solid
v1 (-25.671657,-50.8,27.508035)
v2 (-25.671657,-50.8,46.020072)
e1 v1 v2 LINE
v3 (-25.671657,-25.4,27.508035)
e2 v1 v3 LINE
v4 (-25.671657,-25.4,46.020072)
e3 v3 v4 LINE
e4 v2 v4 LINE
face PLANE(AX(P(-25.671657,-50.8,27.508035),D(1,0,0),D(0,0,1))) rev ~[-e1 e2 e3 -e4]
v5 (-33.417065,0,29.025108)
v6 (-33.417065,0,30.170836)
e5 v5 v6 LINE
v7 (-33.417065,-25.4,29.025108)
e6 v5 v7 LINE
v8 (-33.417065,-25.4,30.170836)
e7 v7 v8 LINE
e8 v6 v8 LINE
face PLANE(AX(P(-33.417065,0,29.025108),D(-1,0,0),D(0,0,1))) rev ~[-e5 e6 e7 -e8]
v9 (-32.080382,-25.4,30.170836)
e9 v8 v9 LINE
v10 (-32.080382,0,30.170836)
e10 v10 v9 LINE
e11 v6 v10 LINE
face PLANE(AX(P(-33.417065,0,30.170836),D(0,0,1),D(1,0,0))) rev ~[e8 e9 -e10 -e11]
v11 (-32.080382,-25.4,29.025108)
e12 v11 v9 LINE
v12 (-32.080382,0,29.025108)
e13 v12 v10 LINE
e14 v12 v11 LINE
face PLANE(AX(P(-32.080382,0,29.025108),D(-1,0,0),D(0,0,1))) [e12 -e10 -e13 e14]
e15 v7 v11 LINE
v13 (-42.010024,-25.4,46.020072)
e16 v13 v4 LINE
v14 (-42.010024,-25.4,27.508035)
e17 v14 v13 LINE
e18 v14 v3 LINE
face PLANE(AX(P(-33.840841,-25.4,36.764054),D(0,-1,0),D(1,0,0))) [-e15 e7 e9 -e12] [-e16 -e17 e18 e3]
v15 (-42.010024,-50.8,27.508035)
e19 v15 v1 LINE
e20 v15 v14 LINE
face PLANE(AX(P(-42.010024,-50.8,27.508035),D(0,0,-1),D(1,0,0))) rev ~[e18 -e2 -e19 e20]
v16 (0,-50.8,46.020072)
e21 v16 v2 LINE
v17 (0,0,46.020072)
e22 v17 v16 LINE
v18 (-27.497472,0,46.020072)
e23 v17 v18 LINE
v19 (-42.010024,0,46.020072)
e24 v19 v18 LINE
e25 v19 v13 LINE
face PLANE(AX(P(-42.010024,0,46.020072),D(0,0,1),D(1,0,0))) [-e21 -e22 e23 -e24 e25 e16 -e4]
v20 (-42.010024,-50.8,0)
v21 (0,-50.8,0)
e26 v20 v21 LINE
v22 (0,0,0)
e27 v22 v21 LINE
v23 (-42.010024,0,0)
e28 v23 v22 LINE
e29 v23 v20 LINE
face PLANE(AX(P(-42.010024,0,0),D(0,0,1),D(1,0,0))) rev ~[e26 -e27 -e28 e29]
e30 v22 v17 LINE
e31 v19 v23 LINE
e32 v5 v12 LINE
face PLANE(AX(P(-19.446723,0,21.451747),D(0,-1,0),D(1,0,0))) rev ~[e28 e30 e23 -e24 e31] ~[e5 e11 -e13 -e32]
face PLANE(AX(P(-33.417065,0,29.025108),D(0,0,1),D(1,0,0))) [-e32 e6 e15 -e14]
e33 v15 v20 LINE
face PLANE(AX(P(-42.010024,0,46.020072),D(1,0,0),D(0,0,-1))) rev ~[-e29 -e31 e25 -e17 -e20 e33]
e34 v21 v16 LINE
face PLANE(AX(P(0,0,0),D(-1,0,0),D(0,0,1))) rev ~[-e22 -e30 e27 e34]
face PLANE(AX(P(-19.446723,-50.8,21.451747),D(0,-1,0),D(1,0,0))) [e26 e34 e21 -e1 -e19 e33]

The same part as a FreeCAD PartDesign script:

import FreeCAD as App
import Part
import Sketcher
from FreeCAD import Vector


def add_polygon(sketch, points):
    """Adds a closed chain of lines whose ends are joined by coincident constraints."""
    first, n = sketch.GeometryCount, len(points)
    for a, b in zip(points, points[1:] + points[:1]):
        sketch.addGeometry(Part.LineSegment(App.Vector(*a, 0), App.Vector(*b, 0)), False)
    for i in range(n):
        sketch.addConstraint(Sketcher.Constraint("Coincident", first + i, 2, first + (i + 1) % n, 1))

doc = App.newDocument("Part")
params = doc.addObject("Spreadsheet::Sheet", "Params")
for row, (alias, value) in enumerate([
    ("pad1_length", "2 in"),
    ("pad2_length", "2 in"),
    ("pocket1_length", "1 in"),
], start=1):
    params.set(f"A{row}", alias)
    params.set(f"B{row}", "=" + value)
    params.setAlias(f"B{row}", alias)

body = doc.addObject("PartDesign::Body", "Body")

# Sketch on XZ plane
sketch1 = body.newObject("Sketcher::SketchObject", "Sketch")
sketch1.AttachmentSupport = (doc.getObject("XZ_Plane"), [""])
sketch1.MapMode = "FlatFace"
add_polygon(sketch1, [(-42, 0), (0, 0), (0, 46), (-27.5, 46), (-42, 46)])  # lines 0-4
add_polygon(sketch1, [(-32.1, 29), (-33.4, 29), (-33.4, 30.2), (-32.1, 30.2)])  # lines 5-8
sketch1.addConstraint(Sketcher.Constraint("Horizontal", 0))
sketch1.addConstraint(Sketcher.Constraint("Vertical", 1))
sketch1.addConstraint(Sketcher.Constraint("Horizontal", 2))
sketch1.addConstraint(Sketcher.Constraint("Horizontal", 3))
sketch1.addConstraint(Sketcher.Constraint("Vertical", 4))
sketch1.addConstraint(Sketcher.Constraint("Horizontal", 5))
sketch1.addConstraint(Sketcher.Constraint("Vertical", 6))
sketch1.addConstraint(Sketcher.Constraint("Horizontal", 7))
sketch1.addConstraint(Sketcher.Constraint("Vertical", 8))
sketch1.addConstraint(Sketcher.Constraint("Coincident", 0, 2, -1, 1))
sketch1.addConstraint(Sketcher.Constraint("DistanceX", 3, 2, 3, 1, 14.512552))
sketch1.addConstraint(Sketcher.Constraint("DistanceY", 1, 1, 1, 2, 46.020072))
sketch1.addConstraint(Sketcher.Constraint("DistanceX", 0, 1, 0, 2, 42.010024))
sketch1.addConstraint(Sketcher.Constraint("DistanceX", 5, 2, 5, 1, 1.336683))
sketch1.addConstraint(Sketcher.Constraint("DistanceY", 6, 1, 6, 2, 1.145728))
sketch1.addConstraint(Sketcher.Constraint("DistanceX", 3, 2, 5, 2, 8.592959))
sketch1.addConstraint(Sketcher.Constraint("DistanceY", -1, 1, 5, 2, 29.025108))
pad1 = body.newObject("PartDesign::Pad", "Pad")
pad1.Profile = sketch1
pad1.setExpression("Length", "Params.pad1_length")

# Sketch on XZ plane
sketch2 = body.newObject("Sketcher::SketchObject", "Sketch001")
sketch2.AttachmentSupport = (doc.getObject("XZ_Plane"), [""])
sketch2.MapMode = "FlatFace"
add_polygon(sketch2, [(-42, 0), (0, 0), (0, 46), (-27.5, 46), (-42, 46)])  # lines 0-4
add_polygon(sketch2, [(-32.1, 29), (-33.4, 29), (-33.4, 30.2), (-32.1, 30.2)])  # lines 5-8
sketch2.addConstraint(Sketcher.Constraint("Horizontal", 0))
sketch2.addConstraint(Sketcher.Constraint("Vertical", 1))
sketch2.addConstraint(Sketcher.Constraint("Horizontal", 2))
sketch2.addConstraint(Sketcher.Constraint("Horizontal", 3))
sketch2.addConstraint(Sketcher.Constraint("Vertical", 4))
sketch2.addConstraint(Sketcher.Constraint("Horizontal", 5))
sketch2.addConstraint(Sketcher.Constraint("Vertical", 6))
sketch2.addConstraint(Sketcher.Constraint("Horizontal", 7))
sketch2.addConstraint(Sketcher.Constraint("Vertical", 8))
sketch2.addConstraint(Sketcher.Constraint("Coincident", 0, 2, -1, 1))
sketch2.addConstraint(Sketcher.Constraint("DistanceX", 3, 2, 3, 1, 14.512552))
sketch2.addConstraint(Sketcher.Constraint("DistanceY", 1, 1, 1, 2, 46.020072))
sketch2.addConstraint(Sketcher.Constraint("DistanceX", 0, 1, 0, 2, 42.010024))
sketch2.addConstraint(Sketcher.Constraint("DistanceX", 5, 2, 5, 1, 1.336683))
sketch2.addConstraint(Sketcher.Constraint("DistanceY", 6, 1, 6, 2, 1.145728))
sketch2.addConstraint(Sketcher.Constraint("DistanceX", 3, 2, 5, 2, 8.592959))
sketch2.addConstraint(Sketcher.Constraint("DistanceY", -1, 1, 5, 2, 29.025108))
pad2 = body.newObject("PartDesign::Pad", "Pad001")
pad2.Profile = sketch2
pad2.setExpression("Length", "Params.pad2_length")

# Sketch on XZ plane
sketch3 = body.newObject("Sketcher::SketchObject", "Sketch002")
sketch3.AttachmentSupport = (doc.getObject("XZ_Plane"), [""])
sketch3.MapMode = "FlatFace"
sketch3.AttachmentOffset = App.Placement(Vector(0, 0, 2 * 25.4), App.Rotation())
add_polygon(sketch3, [(-42, 46), (-42, 27.5), (-25.7, 27.5), (-25.7, 46)])  # lines 0-3
add_polygon(sketch3, [(-32.1, 29), (-33.4, 29), (-33.4, 30.2), (-32.1, 30.2)])  # lines 4-7
sketch3.addConstraint(Sketcher.Constraint("Vertical", 0))
sketch3.addConstraint(Sketcher.Constraint("Horizontal", 1))
sketch3.addConstraint(Sketcher.Constraint("Vertical", 2))
sketch3.addConstraint(Sketcher.Constraint("Horizontal", 3))
sketch3.addConstraint(Sketcher.Constraint("Horizontal", 4))
sketch3.addConstraint(Sketcher.Constraint("Vertical", 5))
sketch3.addConstraint(Sketcher.Constraint("Horizontal", 6))
sketch3.addConstraint(Sketcher.Constraint("Vertical", 7))
sketch3.addConstraint(Sketcher.Constraint("DistanceY", 1, 2, 5, 2, 2.6628))
sketch3.addConstraint(Sketcher.Constraint("DistanceX", 1, 1, 1, 2, 16.338367))
sketch3.addConstraint(Sketcher.Constraint("DistanceX", 4, 2, 4, 1, 1.336683))
sketch3.addConstraint(Sketcher.Constraint("DistanceY", 0, 2, 0, 1, 18.512037))
sketch3.addConstraint(Sketcher.Constraint("DistanceY", 5, 1, 5, 2, 1.145728))
sketch3.addConstraint(Sketcher.Constraint("DistanceY", -1, 1, 2, 2, 46.020072))
sketch3.addConstraint(Sketcher.Constraint("DistanceX", 0, 2, 4, 2, 8.592959))
sketch3.addConstraint(Sketcher.Constraint("DistanceX", 0, 2, -1, 1, 42.010024))
pocket1 = body.newObject("PartDesign::Pocket", "Pocket")
pocket1.Profile = sketch3
pocket1.setExpression("Length", "Params.pocket1_length")

doc.recompute()
